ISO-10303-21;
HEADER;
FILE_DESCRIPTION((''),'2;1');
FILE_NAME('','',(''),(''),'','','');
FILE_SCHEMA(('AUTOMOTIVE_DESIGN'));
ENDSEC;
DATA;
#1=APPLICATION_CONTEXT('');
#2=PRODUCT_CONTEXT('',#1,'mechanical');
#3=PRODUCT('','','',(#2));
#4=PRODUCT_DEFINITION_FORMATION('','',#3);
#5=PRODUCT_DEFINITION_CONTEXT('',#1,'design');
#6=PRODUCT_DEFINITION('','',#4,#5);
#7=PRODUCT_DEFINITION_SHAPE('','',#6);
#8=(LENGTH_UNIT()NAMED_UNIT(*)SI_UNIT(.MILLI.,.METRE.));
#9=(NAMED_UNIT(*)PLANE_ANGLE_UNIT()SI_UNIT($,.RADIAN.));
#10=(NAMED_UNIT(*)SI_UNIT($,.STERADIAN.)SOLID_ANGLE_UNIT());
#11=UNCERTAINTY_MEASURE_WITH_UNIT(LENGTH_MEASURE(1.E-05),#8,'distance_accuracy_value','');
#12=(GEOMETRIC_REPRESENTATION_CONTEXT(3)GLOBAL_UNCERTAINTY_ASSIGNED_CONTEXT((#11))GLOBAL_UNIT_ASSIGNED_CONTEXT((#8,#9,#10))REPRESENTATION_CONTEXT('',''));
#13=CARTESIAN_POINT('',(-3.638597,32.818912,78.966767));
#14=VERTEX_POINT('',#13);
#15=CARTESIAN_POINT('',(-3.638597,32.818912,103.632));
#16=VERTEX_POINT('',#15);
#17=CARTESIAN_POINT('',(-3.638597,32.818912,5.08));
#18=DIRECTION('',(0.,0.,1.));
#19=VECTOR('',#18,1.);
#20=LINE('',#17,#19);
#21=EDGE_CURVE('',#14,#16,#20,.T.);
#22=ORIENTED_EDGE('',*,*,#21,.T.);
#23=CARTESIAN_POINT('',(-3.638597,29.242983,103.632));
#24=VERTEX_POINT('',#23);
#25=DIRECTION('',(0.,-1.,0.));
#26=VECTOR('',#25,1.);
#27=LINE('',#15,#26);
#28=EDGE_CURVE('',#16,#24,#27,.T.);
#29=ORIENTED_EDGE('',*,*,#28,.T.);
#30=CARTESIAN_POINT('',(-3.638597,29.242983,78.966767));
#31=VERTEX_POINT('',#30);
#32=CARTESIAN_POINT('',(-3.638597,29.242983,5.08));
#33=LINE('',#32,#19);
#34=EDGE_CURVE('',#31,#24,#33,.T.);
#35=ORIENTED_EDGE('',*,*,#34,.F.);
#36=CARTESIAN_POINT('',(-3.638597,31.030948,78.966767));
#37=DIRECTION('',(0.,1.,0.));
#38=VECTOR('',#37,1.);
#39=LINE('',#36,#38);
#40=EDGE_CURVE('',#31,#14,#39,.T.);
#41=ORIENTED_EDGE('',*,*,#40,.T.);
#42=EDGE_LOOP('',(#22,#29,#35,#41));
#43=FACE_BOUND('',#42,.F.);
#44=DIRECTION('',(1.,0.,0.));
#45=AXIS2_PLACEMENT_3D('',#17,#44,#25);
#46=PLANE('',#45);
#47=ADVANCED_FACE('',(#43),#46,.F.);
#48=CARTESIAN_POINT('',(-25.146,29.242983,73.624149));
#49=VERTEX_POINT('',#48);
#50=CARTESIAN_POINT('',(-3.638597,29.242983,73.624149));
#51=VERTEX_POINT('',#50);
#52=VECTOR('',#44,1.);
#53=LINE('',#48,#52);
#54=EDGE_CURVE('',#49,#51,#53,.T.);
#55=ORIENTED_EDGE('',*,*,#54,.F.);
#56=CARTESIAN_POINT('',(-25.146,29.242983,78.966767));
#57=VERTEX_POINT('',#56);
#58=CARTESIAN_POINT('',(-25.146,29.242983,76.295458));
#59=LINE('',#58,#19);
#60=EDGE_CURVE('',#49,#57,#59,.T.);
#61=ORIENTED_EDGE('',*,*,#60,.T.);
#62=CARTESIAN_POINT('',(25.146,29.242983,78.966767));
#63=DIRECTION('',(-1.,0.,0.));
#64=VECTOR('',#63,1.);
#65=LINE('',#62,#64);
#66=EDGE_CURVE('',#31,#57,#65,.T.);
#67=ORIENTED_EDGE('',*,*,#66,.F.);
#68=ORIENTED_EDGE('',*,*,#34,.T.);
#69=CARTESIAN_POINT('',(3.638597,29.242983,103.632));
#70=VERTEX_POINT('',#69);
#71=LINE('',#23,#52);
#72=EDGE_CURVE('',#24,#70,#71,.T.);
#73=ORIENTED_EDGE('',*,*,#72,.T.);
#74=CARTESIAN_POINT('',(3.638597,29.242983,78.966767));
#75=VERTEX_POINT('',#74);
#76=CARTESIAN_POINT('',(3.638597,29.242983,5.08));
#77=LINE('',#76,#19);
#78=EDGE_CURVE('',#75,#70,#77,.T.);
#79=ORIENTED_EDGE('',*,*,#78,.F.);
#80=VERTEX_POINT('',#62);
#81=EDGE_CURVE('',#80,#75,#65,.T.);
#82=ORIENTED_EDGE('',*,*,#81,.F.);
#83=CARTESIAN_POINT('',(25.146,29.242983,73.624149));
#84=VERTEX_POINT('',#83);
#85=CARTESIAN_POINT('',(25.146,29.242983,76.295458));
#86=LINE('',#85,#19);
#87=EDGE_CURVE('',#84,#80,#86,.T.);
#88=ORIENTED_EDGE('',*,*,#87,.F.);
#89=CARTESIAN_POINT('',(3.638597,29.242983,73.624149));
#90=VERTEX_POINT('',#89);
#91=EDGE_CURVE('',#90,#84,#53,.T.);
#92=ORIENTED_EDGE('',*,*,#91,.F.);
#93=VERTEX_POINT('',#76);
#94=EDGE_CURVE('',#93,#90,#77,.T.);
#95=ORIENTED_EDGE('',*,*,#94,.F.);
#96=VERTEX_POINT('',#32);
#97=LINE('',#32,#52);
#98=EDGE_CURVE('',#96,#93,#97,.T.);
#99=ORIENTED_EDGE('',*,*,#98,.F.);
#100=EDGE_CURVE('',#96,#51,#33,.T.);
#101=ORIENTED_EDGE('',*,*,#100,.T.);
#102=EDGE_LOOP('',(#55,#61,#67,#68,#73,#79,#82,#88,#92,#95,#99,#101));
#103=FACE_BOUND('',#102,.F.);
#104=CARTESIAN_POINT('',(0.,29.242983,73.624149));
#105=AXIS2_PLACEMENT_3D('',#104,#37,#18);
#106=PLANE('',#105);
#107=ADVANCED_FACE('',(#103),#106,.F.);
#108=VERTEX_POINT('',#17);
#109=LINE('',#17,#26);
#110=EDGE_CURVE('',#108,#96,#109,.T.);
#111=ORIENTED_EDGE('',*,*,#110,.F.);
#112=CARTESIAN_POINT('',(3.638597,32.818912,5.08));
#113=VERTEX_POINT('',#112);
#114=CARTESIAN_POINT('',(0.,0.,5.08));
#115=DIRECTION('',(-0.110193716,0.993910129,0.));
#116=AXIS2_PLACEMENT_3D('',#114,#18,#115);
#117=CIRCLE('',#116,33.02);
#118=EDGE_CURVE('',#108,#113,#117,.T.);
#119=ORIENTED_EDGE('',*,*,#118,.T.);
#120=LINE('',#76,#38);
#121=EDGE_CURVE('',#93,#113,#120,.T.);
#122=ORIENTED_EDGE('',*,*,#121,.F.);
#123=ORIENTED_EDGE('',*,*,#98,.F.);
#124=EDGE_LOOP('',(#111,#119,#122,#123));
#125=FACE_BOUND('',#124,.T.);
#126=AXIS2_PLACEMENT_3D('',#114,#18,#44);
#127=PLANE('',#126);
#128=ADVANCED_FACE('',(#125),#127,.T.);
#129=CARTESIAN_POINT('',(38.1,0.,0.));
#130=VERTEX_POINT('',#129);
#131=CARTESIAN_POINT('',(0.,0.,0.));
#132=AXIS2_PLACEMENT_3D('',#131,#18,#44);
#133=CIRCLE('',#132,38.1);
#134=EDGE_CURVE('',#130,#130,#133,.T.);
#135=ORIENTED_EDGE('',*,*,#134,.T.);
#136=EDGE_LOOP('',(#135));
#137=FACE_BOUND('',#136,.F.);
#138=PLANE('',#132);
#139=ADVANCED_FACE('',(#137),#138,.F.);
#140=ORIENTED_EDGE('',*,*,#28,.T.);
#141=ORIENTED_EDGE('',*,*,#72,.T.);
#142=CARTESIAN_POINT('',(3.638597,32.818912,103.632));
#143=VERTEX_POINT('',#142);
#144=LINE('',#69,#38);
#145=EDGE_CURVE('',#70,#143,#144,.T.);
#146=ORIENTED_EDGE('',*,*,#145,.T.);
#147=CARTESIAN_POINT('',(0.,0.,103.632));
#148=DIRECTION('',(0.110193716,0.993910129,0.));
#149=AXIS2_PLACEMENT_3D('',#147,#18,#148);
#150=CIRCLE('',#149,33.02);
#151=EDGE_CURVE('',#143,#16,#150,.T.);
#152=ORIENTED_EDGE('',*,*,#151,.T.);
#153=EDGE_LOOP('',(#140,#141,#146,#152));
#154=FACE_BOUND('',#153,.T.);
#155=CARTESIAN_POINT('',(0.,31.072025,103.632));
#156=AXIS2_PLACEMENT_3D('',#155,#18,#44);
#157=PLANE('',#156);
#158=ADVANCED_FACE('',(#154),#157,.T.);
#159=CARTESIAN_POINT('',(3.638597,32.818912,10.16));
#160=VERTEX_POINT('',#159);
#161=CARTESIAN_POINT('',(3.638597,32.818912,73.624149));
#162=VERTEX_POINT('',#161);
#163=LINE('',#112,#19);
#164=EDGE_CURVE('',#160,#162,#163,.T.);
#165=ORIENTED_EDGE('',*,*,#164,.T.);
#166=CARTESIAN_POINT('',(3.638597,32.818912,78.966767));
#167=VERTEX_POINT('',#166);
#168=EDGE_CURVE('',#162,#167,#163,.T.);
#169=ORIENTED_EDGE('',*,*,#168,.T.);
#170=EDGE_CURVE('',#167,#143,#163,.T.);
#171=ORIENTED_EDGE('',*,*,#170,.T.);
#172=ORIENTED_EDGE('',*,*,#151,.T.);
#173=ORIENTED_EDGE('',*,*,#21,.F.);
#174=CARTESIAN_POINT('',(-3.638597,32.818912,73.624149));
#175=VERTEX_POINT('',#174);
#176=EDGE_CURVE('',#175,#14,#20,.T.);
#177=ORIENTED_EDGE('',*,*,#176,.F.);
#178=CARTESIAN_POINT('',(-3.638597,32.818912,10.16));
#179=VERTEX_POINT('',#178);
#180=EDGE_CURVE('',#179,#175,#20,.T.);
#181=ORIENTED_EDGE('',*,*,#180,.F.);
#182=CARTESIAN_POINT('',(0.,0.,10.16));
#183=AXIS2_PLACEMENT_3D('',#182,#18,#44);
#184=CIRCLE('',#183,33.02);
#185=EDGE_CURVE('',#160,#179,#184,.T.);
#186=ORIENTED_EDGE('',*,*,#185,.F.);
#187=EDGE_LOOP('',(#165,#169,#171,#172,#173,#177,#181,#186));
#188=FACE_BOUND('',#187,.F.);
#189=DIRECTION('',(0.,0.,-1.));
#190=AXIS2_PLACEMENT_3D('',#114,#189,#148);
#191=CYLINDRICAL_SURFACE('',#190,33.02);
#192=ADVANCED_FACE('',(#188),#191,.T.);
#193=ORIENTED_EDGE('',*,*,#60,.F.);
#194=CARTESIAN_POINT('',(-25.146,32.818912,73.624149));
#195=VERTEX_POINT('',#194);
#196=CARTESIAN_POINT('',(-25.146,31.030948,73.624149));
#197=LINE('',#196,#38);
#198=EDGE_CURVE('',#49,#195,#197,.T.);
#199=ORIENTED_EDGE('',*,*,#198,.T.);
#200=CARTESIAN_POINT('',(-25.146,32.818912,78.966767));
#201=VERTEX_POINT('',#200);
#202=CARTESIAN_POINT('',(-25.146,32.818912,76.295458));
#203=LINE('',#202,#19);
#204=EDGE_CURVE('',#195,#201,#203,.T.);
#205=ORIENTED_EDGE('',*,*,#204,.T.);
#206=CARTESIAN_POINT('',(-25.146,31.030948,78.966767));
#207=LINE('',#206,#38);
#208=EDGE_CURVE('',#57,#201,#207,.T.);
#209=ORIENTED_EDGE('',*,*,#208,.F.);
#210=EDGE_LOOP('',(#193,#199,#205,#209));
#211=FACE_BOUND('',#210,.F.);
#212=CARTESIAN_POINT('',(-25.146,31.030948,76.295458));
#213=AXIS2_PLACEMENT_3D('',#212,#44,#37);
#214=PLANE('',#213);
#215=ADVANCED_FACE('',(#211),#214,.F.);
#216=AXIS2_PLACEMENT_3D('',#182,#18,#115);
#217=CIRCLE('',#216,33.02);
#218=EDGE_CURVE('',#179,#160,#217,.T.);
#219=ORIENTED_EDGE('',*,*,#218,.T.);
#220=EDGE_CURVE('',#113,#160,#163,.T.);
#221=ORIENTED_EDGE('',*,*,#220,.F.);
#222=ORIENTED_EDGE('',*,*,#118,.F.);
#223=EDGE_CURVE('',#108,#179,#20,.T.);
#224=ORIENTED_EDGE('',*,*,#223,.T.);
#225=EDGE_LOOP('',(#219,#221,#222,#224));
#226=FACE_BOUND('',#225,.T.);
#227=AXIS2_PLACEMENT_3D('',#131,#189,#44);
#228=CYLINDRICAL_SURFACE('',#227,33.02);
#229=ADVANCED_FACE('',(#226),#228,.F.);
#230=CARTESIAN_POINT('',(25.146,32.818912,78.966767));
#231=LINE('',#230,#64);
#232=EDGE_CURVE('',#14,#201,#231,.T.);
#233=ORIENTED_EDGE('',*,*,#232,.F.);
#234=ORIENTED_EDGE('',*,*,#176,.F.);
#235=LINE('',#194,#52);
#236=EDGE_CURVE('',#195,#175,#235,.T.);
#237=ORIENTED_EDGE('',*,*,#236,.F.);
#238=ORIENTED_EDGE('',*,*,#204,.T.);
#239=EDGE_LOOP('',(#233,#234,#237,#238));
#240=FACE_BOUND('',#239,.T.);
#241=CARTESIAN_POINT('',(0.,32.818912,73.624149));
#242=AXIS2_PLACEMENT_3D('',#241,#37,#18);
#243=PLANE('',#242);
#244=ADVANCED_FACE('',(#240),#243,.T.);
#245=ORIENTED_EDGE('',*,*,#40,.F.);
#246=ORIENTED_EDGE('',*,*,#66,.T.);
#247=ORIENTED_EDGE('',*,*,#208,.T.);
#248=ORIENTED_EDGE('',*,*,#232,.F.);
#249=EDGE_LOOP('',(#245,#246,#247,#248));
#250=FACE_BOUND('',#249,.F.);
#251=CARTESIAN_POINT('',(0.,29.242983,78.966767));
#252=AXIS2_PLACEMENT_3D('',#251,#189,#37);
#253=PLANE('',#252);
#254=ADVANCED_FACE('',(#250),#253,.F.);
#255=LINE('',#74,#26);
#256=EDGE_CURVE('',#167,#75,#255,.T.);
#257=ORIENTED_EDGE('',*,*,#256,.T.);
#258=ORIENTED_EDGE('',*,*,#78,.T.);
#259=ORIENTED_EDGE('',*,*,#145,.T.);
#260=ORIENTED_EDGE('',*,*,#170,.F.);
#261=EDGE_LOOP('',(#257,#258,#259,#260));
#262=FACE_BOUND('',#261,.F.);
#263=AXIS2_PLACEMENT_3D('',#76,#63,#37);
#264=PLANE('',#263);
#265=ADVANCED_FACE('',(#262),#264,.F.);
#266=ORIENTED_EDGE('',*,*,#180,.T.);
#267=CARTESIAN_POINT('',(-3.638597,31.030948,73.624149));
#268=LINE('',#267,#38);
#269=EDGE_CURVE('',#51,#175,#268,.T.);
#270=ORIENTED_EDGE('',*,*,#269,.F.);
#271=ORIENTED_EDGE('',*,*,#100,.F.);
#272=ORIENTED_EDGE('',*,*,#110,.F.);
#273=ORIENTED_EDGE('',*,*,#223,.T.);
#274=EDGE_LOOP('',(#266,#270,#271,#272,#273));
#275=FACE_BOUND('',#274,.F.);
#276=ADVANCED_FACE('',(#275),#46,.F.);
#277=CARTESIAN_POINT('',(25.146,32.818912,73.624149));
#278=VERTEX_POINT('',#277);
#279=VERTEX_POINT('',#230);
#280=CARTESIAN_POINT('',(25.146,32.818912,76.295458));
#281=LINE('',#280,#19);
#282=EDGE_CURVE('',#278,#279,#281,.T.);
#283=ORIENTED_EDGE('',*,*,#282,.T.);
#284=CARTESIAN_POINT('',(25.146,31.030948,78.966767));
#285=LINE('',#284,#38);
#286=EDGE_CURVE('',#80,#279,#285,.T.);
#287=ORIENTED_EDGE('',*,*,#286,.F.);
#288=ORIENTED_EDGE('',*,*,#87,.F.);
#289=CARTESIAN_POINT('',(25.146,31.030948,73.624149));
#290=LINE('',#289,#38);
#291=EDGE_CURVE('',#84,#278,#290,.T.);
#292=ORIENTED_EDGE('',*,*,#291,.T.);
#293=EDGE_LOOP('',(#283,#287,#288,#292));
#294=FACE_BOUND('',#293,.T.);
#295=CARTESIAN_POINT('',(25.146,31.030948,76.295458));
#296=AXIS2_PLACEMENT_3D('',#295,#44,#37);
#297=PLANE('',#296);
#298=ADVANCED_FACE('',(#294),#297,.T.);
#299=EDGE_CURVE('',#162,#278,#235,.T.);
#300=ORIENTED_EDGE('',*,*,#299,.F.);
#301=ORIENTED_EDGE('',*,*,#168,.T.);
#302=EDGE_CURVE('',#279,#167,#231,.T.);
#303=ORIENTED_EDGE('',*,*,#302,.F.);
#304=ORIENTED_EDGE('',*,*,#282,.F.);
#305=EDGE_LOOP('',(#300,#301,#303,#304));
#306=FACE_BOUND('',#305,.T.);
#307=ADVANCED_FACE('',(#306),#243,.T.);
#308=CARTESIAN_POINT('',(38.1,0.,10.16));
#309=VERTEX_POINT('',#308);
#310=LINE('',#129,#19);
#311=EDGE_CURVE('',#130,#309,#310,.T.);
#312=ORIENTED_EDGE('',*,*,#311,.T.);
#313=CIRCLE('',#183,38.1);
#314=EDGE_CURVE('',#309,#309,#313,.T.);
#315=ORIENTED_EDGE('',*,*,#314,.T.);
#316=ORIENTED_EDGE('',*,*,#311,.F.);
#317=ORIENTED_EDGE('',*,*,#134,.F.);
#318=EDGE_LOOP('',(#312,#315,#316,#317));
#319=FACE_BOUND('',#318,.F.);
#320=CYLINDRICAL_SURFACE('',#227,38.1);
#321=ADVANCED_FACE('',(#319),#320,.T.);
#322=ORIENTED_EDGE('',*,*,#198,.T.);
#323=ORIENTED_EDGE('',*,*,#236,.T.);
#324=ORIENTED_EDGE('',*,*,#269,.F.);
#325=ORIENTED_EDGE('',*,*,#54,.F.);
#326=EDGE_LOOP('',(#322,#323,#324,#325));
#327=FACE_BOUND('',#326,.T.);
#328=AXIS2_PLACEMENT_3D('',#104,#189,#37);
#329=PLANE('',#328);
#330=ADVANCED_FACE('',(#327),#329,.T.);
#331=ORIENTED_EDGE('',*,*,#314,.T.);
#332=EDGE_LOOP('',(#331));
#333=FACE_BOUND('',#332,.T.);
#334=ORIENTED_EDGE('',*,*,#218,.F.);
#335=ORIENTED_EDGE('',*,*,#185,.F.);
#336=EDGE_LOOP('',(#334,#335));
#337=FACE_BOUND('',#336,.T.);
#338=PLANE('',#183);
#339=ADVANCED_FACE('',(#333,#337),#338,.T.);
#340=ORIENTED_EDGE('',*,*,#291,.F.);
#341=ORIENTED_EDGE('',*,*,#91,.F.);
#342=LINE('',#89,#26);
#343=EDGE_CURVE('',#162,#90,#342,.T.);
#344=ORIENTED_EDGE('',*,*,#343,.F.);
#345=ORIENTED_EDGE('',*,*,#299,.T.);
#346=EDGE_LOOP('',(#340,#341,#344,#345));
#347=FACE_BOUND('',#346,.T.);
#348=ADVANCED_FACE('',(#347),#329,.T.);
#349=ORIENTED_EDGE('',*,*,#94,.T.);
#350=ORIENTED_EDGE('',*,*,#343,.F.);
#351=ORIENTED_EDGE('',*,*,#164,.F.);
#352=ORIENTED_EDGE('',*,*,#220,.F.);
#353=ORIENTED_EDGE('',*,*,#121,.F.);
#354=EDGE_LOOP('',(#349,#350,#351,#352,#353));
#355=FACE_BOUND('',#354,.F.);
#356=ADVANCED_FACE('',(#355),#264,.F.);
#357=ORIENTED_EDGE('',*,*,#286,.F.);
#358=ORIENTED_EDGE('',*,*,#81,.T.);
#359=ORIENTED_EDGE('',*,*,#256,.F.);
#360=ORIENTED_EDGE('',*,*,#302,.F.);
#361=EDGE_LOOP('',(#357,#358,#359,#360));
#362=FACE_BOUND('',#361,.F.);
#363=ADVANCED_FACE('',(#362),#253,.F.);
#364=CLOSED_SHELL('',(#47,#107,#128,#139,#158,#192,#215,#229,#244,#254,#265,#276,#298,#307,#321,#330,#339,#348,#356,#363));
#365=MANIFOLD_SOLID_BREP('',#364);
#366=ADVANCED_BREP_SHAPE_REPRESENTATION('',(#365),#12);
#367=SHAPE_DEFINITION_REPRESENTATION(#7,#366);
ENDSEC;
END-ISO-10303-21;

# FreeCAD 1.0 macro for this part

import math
import FreeCAD as App
import Part
import Sketcher
Q = App.Units.Quantity


def faces_at(feature, points):
    """Names of the faces that lie closest to the given points."""
    faces = feature.Shape.Faces
    near = lambda p: min(range(len(faces)), key=lambda i: faces[i].distToShape(Part.Vertex(*p))[0])
    return sorted({f"Face{near(p) + 1}" for p in points})

doc = App.newDocument("Part")
body = doc.addObject("PartDesign::Body", "Body")

sketch1 = body.newObject("Sketcher::SketchObject", "Sketch")
sketch1.AttachmentSupport = (doc.getObject("XY_Plane"), [""])
sketch1.MapMode = "FlatFace"
sketch1.addGeometry(Part.Circle(App.Vector(0, 0, 0), App.Vector(0, 0, 1), 38), False)
sketch1.addConstraint(Sketcher.Constraint("Coincident", 0, 3, -1, 1))
sketch1.addConstraint(Sketcher.Constraint("Diameter", 0, Q("3 in")))
pad1 = body.newObject("PartDesign::Pad", "Pad")
pad1.Profile = sketch1
pad1.Length = Q("0.4 in")
doc.recompute()

thickness = body.newObject("PartDesign::Thickness", "Thickness")
thickness.Base = (pad1, faces_at(pad1, [(0, 0, 10.16)]))
thickness.Value = Q("0.2 in")
thickness.Reversed = True
thickness.Join = "Arc"

sketch2 = body.newObject("Sketcher::SketchObject", "Sketch001")
sketch2.AttachmentSupport = (doc.getObject("XY_Plane"), [""])
sketch2.MapMode = "FlatFace"
sketch2.AttachmentOffset = App.Placement(App.Vector(0, 0, 0.2 * 25.4), App.Rotation())
sketch2.addGeometry(Part.LineSegment(App.Vector(-3.6, 29.2, 0), App.Vector(3.6, 29.2, 0)), False)
sketch2.addGeometry(Part.LineSegment(App.Vector(3.6, 29.2, 0), App.Vector(3.6, 32.8, 0)), False)
sketch2.addGeometry(Part.ArcOfCircle(Part.Circle(App.Vector(0, 0, 0), App.Vector(0, 0, 1), 33), math.radians(83.67), math.radians(96.33)), False)
sketch2.addGeometry(Part.LineSegment(App.Vector(-3.6, 32.8, 0), App.Vector(-3.6, 29.2, 0)), False)
sketch2.addConstraint(Sketcher.Constraint("Coincident", 0, 2, 1, 1))
sketch2.addConstraint(Sketcher.Constraint("Coincident", 1, 2, 2, 1))
sketch2.addConstraint(Sketcher.Constraint("Coincident", 2, 2, 3, 1))
sketch2.addConstraint(Sketcher.Constraint("Coincident", 3, 2, 0, 1))
sketch2.addConstraint(Sketcher.Constraint("Horizontal", 0))
sketch2.addConstraint(Sketcher.Constraint("Vertical", 1))
sketch2.addConstraint(Sketcher.Constraint("Vertical", 3))
sketch2.addConstraint(Sketcher.Constraint("Coincident", 2, 3, -1, 1))
sketch2.addConstraint(Sketcher.Constraint("Horizontal", 1, 2, 2, 2))
sketch2.addConstraint(Sketcher.Constraint("Radius", 2, Q("1.3 in")))
sketch2.addConstraint(Sketcher.Constraint("DistanceY", 1, 1, 1, 2, Q("3.575929 mm")))
sketch2.addConstraint(Sketcher.Constraint("DistanceX", 0, 1, 0, 2, Q("7.277193 mm")))
pad2 = body.newObject("PartDesign::Pad", "Pad001")
pad2.Profile = sketch2
pad2.Length = Q("3.88 in")

sketch3 = body.newObject("Sketcher::SketchObject", "Sketch002")
sketch3.AttachmentSupport = (doc.getObject("YZ_Plane"), [""])
sketch3.MapMode = "FlatFace"
sketch3.addGeometry(Part.LineSegment(App.Vector(29.2, 79, 0), App.Vector(29.2, 73.6, 0)), False)
sketch3.addGeometry(Part.LineSegment(App.Vector(29.2, 73.6, 0), App.Vector(32.8, 73.6, 0)), False)
sketch3.addGeometry(Part.LineSegment(App.Vector(32.8, 73.6, 0), App.Vector(32.8, 79, 0)), False)
sketch3.addGeometry(Part.LineSegment(App.Vector(32.8, 79, 0), App.Vector(29.2, 79, 0)), False)
sketch3.addConstraint(Sketcher.Constraint("Coincident", 0, 2, 1, 1))
sketch3.addConstraint(Sketcher.Constraint("Coincident", 1, 2, 2, 1))
sketch3.addConstraint(Sketcher.Constraint("Coincident", 2, 2, 3, 1))
sketch3.addConstraint(Sketcher.Constraint("Coincident", 3, 2, 0, 1))
sketch3.addConstraint(Sketcher.Constraint("Vertical", 0))
sketch3.addConstraint(Sketcher.Constraint("Horizontal", 1))
sketch3.addConstraint(Sketcher.Constraint("Vertical", 2))
sketch3.addConstraint(Sketcher.Constraint("Horizontal", 3))
sketch3.addConstraint(Sketcher.Constraint("DistanceX", 1, 1, 1, 2, Q("3.575929 mm")))
sketch3.addConstraint(Sketcher.Constraint("DistanceY", 0, 2, 0, 1, Q("5.342618 mm")))
sketch3.addConstraint(Sketcher.Constraint("DistanceY", -1, 1, 0, 2, Q("73.624149 mm")))
sketch3.addConstraint(Sketcher.Constraint("DistanceX", -1, 1, 0, 2, Q("29.242983 mm")))
pad3 = body.newObject("PartDesign::Pad", "Pad002")
pad3.Profile = sketch3
pad3.Length = Q("1.98 in")
pad3.Midplane = True

doc.recompute()
